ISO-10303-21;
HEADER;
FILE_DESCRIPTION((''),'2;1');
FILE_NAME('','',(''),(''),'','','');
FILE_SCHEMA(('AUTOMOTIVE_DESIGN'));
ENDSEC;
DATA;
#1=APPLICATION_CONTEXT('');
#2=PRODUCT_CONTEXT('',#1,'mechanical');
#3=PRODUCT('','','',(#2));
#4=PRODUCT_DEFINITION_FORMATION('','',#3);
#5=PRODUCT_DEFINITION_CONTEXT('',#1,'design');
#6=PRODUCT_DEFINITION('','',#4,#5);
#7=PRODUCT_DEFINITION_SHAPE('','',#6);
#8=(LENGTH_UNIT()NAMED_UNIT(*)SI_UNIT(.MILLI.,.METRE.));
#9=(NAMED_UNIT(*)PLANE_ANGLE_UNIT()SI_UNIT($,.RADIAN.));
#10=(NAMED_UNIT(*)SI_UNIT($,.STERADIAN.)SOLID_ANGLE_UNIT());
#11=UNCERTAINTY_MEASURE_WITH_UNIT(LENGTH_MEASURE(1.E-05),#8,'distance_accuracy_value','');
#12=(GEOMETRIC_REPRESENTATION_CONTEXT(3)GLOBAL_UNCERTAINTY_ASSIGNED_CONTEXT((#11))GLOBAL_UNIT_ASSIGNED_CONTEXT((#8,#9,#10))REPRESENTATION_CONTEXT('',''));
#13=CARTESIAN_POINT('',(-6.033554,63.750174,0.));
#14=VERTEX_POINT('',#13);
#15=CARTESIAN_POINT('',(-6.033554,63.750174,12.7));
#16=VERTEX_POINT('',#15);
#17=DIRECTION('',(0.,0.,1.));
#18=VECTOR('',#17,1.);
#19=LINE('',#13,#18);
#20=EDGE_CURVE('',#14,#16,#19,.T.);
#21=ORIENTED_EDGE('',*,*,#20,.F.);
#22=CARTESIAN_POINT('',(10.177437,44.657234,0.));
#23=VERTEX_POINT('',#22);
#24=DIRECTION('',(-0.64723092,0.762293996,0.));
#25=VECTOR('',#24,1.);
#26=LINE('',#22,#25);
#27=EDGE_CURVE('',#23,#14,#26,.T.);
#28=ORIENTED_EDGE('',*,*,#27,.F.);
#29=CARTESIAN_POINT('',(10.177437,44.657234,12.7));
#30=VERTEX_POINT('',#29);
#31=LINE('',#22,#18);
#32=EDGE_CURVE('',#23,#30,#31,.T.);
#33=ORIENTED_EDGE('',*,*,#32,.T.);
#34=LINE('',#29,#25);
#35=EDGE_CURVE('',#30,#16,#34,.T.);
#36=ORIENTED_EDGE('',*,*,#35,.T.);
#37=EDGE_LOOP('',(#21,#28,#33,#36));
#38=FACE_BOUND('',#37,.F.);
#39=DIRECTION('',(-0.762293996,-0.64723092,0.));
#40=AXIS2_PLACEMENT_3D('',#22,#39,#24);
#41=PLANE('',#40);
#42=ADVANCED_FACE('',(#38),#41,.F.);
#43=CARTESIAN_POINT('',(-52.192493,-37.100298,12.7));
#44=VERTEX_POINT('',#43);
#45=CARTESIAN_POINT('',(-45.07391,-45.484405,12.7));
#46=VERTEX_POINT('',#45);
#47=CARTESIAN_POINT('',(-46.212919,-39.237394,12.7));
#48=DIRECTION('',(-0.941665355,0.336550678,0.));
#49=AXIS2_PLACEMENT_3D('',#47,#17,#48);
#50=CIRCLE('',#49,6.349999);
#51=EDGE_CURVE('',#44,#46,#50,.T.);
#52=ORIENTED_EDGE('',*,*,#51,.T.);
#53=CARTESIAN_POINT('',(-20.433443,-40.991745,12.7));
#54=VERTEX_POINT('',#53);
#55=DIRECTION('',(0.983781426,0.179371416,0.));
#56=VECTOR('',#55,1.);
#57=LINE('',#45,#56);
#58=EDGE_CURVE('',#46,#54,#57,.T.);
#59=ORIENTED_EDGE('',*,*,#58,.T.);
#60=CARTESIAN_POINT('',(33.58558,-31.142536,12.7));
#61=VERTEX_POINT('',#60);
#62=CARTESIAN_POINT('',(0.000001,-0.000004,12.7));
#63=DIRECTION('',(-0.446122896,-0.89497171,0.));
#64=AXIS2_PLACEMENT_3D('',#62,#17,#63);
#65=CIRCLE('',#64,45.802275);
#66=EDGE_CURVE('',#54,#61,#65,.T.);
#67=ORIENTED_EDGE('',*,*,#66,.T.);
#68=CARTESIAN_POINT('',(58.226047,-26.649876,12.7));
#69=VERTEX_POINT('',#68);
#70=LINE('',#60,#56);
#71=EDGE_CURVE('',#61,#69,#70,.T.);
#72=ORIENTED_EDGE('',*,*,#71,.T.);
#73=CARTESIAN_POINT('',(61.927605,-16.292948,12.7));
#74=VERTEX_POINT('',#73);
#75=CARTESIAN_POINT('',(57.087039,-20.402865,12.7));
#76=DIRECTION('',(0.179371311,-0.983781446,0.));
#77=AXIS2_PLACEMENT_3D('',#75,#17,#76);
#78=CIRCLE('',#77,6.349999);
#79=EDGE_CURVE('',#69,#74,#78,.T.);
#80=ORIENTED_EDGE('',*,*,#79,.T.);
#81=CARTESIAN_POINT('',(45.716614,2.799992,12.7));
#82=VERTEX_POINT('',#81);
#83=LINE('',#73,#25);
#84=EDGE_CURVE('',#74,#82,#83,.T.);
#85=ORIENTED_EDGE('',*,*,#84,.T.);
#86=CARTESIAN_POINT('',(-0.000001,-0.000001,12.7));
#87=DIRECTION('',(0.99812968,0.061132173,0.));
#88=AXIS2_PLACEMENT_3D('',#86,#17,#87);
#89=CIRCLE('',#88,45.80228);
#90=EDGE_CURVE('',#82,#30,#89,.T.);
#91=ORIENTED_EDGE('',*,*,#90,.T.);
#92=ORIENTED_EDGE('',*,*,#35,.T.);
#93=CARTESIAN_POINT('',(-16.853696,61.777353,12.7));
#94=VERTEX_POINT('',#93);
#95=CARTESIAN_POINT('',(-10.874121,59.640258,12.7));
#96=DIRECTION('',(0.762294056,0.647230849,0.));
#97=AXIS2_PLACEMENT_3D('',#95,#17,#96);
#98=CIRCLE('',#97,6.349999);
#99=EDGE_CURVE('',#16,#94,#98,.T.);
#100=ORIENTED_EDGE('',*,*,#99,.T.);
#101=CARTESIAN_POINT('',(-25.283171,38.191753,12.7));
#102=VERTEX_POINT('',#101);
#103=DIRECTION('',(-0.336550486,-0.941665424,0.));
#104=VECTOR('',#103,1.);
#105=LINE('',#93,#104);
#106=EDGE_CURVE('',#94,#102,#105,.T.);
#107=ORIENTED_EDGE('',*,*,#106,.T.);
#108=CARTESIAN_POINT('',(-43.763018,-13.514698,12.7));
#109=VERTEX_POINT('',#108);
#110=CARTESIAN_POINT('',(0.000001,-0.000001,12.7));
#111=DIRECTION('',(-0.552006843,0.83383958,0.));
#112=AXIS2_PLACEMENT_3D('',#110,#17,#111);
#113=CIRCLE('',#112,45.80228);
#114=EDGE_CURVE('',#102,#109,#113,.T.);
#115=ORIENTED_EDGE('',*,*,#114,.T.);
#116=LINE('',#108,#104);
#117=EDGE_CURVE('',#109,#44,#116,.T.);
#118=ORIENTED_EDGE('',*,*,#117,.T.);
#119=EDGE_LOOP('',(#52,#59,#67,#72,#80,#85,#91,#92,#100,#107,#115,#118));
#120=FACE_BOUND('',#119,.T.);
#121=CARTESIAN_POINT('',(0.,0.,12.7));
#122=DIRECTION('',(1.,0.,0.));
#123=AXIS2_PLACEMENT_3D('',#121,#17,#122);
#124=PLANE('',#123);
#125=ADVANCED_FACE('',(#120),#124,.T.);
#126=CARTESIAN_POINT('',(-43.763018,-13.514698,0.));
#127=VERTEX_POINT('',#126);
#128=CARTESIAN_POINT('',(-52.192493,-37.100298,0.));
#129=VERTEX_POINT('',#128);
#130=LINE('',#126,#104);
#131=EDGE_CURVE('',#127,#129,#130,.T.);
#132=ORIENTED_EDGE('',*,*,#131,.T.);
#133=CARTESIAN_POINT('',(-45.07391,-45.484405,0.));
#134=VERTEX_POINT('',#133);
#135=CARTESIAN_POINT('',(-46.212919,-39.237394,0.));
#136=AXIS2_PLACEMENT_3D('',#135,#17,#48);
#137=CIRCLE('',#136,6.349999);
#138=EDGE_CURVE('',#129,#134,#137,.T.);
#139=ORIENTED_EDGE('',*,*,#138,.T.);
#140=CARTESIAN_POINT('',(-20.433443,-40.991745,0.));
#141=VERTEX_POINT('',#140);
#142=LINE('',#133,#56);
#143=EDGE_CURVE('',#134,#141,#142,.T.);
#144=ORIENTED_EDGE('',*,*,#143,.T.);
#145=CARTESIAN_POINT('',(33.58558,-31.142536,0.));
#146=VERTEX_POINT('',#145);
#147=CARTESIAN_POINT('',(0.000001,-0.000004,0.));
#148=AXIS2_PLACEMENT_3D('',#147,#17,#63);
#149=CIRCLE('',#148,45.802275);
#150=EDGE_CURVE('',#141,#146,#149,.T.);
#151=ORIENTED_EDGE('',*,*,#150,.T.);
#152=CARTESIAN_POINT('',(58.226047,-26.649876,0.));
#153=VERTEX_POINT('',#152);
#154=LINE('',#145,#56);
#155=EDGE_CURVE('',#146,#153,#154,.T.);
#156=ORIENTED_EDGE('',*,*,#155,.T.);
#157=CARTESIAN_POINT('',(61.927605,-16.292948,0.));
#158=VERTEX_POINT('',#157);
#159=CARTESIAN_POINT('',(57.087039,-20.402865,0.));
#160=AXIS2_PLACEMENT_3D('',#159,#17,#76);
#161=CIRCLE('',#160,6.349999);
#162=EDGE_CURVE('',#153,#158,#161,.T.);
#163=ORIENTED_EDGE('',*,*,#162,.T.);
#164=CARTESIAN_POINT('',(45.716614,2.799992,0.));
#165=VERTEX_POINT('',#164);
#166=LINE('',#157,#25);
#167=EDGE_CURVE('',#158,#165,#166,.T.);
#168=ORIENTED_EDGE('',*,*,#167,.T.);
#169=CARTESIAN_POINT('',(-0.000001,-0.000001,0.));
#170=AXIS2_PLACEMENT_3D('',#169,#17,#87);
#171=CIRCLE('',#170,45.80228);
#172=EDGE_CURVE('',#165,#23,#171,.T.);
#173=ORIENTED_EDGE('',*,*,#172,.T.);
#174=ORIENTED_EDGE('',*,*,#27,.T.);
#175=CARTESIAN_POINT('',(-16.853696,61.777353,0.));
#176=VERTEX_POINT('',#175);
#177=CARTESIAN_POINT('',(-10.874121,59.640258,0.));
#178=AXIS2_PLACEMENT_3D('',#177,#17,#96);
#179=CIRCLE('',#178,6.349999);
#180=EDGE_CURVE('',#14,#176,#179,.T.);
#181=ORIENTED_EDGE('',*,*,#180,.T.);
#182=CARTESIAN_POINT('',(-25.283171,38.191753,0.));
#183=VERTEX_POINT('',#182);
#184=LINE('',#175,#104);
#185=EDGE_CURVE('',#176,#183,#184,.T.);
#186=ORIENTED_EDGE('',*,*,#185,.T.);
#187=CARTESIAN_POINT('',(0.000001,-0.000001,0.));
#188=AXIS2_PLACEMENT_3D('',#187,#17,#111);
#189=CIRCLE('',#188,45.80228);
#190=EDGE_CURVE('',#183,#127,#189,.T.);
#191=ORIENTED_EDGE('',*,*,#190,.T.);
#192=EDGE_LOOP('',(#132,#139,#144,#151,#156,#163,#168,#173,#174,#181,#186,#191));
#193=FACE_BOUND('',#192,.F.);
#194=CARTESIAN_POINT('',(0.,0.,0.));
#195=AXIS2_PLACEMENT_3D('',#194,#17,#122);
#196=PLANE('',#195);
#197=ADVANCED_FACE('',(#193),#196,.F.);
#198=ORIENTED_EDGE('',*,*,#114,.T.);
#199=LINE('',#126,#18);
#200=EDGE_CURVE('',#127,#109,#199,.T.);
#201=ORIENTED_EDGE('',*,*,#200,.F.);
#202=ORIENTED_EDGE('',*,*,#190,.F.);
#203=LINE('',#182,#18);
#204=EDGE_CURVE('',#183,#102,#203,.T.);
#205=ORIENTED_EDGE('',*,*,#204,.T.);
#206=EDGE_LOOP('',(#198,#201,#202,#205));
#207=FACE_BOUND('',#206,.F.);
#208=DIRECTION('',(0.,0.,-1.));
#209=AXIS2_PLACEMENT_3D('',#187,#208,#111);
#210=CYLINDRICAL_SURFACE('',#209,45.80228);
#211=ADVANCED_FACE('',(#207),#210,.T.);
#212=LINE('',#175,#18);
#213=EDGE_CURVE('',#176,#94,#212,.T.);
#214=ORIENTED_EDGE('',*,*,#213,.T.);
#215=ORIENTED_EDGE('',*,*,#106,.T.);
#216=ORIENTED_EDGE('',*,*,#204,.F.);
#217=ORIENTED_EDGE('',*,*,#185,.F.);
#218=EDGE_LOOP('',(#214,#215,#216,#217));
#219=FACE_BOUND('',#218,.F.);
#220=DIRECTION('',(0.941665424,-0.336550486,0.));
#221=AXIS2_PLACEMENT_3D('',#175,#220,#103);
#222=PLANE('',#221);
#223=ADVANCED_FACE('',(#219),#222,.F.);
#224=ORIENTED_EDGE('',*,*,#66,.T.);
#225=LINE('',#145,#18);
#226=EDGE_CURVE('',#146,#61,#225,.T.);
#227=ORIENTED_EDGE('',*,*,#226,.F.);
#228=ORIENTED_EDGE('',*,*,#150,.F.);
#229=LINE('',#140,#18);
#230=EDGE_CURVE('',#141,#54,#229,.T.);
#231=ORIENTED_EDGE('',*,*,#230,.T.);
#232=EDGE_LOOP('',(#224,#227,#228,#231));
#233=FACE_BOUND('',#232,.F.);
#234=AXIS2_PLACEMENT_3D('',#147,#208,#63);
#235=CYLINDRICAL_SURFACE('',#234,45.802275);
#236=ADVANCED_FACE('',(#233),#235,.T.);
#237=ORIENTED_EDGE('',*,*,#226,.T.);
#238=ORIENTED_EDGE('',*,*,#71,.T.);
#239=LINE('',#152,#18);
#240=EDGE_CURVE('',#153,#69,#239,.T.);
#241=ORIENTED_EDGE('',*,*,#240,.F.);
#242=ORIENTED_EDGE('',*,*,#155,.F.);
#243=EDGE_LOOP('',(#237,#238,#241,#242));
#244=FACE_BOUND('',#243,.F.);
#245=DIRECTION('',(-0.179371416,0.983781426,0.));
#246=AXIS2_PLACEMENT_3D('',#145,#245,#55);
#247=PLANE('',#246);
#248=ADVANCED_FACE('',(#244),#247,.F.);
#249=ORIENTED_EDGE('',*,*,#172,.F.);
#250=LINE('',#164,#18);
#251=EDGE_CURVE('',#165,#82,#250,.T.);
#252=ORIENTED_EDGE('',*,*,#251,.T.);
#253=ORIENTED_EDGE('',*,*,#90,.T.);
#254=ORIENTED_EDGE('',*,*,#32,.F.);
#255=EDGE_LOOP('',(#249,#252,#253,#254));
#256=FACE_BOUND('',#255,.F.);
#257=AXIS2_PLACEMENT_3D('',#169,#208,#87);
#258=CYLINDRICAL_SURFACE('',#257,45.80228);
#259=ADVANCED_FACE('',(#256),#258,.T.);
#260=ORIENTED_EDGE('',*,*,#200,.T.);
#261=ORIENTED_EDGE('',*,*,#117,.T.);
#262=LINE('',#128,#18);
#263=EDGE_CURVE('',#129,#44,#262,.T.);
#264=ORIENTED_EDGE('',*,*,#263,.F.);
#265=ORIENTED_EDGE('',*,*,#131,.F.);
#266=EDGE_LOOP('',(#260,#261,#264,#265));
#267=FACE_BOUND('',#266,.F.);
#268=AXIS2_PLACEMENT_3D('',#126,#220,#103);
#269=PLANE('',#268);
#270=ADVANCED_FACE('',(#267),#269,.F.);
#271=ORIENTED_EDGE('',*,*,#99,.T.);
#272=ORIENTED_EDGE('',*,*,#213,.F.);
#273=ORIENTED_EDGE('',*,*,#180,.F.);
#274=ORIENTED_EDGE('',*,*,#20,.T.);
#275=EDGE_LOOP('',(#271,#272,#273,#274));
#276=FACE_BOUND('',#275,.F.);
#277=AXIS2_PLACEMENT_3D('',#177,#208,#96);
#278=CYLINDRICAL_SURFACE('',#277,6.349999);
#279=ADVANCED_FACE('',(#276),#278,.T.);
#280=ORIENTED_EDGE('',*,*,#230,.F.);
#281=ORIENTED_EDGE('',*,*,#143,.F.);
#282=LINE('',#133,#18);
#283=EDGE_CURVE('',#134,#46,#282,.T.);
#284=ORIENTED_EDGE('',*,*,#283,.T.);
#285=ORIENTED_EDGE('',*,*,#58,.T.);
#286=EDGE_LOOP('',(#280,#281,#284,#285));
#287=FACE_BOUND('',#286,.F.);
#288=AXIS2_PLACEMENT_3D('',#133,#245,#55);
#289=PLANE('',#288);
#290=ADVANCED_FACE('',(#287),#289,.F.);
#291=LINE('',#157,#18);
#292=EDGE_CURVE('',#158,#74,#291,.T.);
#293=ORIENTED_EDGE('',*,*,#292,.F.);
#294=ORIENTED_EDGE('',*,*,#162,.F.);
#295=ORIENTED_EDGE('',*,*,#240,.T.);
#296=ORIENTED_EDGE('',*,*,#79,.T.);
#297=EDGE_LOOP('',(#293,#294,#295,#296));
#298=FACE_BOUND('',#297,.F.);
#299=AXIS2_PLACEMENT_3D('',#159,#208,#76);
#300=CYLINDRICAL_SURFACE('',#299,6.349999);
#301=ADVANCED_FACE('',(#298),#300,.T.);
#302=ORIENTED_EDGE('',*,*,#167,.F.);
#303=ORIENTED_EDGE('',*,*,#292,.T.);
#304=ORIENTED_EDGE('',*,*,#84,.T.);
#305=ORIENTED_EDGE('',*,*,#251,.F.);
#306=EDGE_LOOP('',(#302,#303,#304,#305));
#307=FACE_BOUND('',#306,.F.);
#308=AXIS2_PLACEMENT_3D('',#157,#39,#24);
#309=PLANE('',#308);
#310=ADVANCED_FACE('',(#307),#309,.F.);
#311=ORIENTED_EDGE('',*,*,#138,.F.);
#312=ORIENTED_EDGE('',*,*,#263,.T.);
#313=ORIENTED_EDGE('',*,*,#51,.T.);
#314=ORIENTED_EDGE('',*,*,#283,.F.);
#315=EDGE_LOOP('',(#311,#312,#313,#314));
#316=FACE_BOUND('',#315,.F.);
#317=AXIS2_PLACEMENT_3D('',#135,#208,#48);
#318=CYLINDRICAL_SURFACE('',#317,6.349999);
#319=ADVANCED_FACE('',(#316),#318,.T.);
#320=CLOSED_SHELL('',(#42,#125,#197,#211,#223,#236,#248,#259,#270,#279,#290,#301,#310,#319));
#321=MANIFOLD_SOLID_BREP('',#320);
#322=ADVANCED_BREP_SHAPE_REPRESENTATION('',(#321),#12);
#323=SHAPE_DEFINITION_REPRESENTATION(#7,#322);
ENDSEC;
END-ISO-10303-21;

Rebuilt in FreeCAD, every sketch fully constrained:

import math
import FreeCAD as App
import Part
import Sketcher

V = App.Vector
Q = App.Units.Quantity

doc = App.newDocument("Part")
body = doc.addObject("PartDesign::Body", "Body")

sketch1 = body.newObject("Sketcher::SketchObject", "Sketch")
sketch1.AttachmentSupport = (doc.getObject("XY_Plane"), [""])
sketch1.MapMode = "FlatFace"
sketch1.addGeometry(Part.LineSegment(V(10, 45, 0), V(-6, 64, 0)), False)
sketch1.addGeometry(Part.ArcOfCircle(Part.Circle(V(-11, 60, 0), V(0, 0, 1), 6), math.radians(40), math.radians(160)), False)
sketch1.addGeometry(Part.LineSegment(V(-17, 62, 0), V(-25, 38, 0)), False)
sketch1.addGeometry(Part.ArcOfCircle(Part.Circle(V(0, 0, 0), V(0, 0, 1), 46), math.radians(124), math.radians(197)), False)
sketch1.addGeometry(Part.LineSegment(V(-44, -14, 0), V(-52, -37, 0)), False)
sketch1.addGeometry(Part.ArcOfCircle(Part.Circle(V(-46, -39, 0), V(0, 0, 1), 6), math.radians(160), math.radians(280)), False)
sketch1.addGeometry(Part.LineSegment(V(-45, -45, 0), V(-20, -41, 0)), False)
sketch1.addGeometry(Part.ArcOfCircle(Part.Circle(V(0, 0, 0), V(0, 0, 1), 46), math.radians(-116), math.radians(-43)), False)
sketch1.addGeometry(Part.LineSegment(V(34, -31, 0), V(58, -27, 0)), False)
sketch1.addGeometry(Part.ArcOfCircle(Part.Circle(V(57, -20, 0), V(0, 0, 1), 6), math.radians(-80), math.radians(40)), False)
sketch1.addGeometry(Part.LineSegment(V(62, -16, 0), V(46, 3, 0)), False)
sketch1.addGeometry(Part.ArcOfCircle(Part.Circle(V(0, 0, 0), V(0, 0, 1), 46), math.radians(4), math.radians(77)), False)
sketch1.addConstraint(Sketcher.Constraint("Tangent", 0, 2, 1, 1))
sketch1.addConstraint(Sketcher.Constraint("Tangent", 1, 2, 2, 1))
sketch1.addConstraint(Sketcher.Constraint("Coincident", 2, 2, 3, 1))
sketch1.addConstraint(Sketcher.Constraint("Coincident", 3, 2, 4, 1))
sketch1.addConstraint(Sketcher.Constraint("Tangent", 4, 2, 5, 1))
sketch1.addConstraint(Sketcher.Constraint("Tangent", 5, 2, 6, 1))
sketch1.addConstraint(Sketcher.Constraint("Coincident", 6, 2, 7, 1))
sketch1.addConstraint(Sketcher.Constraint("Coincident", 7, 2, 8, 1))
sketch1.addConstraint(Sketcher.Constraint("Tangent", 8, 2, 9, 1))
sketch1.addConstraint(Sketcher.Constraint("Tangent", 9, 2, 10, 1))
sketch1.addConstraint(Sketcher.Constraint("Coincident", 10, 2, 11, 1))
sketch1.addConstraint(Sketcher.Constraint("Coincident", 11, 2, 0, 1))
sketch1.addConstraint(Sketcher.Constraint("Coincident", 3, 3, -1, 1))
sketch1.addConstraint(Sketcher.Constraint("Coincident", 7, 3, -1, 1))
sketch1.addConstraint(Sketcher.Constraint("Coincident", 11, 3, -1, 1))
sketch1.addConstraint(Sketcher.Constraint("Equal", 1, 5))
sketch1.addConstraint(Sketcher.Constraint("Equal", 5, 9))
sketch1.addConstraint(Sketcher.Constraint("Equal", 3, 11))
sketch1.addConstraint(Sketcher.Constraint("Parallel", 2, 4))
sketch1.addConstraint(Sketcher.Constraint("Parallel", 6, 8))
sketch1.addConstraint(Sketcher.Constraint("Parallel", 0, 10))
sketch1.addConstraint(Sketcher.Constraint("Equal", 0, 2))
sketch1.addConstraint(Sketcher.Constraint("Equal", 2, 4))
sketch1.addConstraint(Sketcher.Constraint("Equal", 4, 6))
sketch1.addConstraint(Sketcher.Constraint("Equal", 6, 8))
sketch1.addConstraint(Sketcher.Constraint("Equal", 8, 10))
sketch1.addConstraint(Sketcher.Constraint("Radius", 1, Q("0.25 in")))
sketch1.addConstraint(Sketcher.Constraint("Radius", 3, Q("45.80228 mm")))
sketch1.addConstraint(Sketcher.Constraint("Radius", 7, Q("45.802275 mm")))
sketch1.addConstraint(Sketcher.Constraint("DistanceY", 3, 2, -1, 1, Q("13.514698 mm")))
sketch1.addConstraint(Sketcher.Constraint("DistanceY", 4, 2, -1, 1, Q("37.100298 mm")))
sketch1.addConstraint(Sketcher.Constraint("DistanceX", 5, 3, 1, 3, Q("35.338798 mm")))
sketch1.addConstraint(Sketcher.Constraint("DistanceX", 5, 3, 3, 2, Q("2.449901 mm")))
pad1 = body.newObject("PartDesign::Pad", "Pad")
pad1.Profile = sketch1
pad1.Length = Q("0.5 in")

doc.recompute()
